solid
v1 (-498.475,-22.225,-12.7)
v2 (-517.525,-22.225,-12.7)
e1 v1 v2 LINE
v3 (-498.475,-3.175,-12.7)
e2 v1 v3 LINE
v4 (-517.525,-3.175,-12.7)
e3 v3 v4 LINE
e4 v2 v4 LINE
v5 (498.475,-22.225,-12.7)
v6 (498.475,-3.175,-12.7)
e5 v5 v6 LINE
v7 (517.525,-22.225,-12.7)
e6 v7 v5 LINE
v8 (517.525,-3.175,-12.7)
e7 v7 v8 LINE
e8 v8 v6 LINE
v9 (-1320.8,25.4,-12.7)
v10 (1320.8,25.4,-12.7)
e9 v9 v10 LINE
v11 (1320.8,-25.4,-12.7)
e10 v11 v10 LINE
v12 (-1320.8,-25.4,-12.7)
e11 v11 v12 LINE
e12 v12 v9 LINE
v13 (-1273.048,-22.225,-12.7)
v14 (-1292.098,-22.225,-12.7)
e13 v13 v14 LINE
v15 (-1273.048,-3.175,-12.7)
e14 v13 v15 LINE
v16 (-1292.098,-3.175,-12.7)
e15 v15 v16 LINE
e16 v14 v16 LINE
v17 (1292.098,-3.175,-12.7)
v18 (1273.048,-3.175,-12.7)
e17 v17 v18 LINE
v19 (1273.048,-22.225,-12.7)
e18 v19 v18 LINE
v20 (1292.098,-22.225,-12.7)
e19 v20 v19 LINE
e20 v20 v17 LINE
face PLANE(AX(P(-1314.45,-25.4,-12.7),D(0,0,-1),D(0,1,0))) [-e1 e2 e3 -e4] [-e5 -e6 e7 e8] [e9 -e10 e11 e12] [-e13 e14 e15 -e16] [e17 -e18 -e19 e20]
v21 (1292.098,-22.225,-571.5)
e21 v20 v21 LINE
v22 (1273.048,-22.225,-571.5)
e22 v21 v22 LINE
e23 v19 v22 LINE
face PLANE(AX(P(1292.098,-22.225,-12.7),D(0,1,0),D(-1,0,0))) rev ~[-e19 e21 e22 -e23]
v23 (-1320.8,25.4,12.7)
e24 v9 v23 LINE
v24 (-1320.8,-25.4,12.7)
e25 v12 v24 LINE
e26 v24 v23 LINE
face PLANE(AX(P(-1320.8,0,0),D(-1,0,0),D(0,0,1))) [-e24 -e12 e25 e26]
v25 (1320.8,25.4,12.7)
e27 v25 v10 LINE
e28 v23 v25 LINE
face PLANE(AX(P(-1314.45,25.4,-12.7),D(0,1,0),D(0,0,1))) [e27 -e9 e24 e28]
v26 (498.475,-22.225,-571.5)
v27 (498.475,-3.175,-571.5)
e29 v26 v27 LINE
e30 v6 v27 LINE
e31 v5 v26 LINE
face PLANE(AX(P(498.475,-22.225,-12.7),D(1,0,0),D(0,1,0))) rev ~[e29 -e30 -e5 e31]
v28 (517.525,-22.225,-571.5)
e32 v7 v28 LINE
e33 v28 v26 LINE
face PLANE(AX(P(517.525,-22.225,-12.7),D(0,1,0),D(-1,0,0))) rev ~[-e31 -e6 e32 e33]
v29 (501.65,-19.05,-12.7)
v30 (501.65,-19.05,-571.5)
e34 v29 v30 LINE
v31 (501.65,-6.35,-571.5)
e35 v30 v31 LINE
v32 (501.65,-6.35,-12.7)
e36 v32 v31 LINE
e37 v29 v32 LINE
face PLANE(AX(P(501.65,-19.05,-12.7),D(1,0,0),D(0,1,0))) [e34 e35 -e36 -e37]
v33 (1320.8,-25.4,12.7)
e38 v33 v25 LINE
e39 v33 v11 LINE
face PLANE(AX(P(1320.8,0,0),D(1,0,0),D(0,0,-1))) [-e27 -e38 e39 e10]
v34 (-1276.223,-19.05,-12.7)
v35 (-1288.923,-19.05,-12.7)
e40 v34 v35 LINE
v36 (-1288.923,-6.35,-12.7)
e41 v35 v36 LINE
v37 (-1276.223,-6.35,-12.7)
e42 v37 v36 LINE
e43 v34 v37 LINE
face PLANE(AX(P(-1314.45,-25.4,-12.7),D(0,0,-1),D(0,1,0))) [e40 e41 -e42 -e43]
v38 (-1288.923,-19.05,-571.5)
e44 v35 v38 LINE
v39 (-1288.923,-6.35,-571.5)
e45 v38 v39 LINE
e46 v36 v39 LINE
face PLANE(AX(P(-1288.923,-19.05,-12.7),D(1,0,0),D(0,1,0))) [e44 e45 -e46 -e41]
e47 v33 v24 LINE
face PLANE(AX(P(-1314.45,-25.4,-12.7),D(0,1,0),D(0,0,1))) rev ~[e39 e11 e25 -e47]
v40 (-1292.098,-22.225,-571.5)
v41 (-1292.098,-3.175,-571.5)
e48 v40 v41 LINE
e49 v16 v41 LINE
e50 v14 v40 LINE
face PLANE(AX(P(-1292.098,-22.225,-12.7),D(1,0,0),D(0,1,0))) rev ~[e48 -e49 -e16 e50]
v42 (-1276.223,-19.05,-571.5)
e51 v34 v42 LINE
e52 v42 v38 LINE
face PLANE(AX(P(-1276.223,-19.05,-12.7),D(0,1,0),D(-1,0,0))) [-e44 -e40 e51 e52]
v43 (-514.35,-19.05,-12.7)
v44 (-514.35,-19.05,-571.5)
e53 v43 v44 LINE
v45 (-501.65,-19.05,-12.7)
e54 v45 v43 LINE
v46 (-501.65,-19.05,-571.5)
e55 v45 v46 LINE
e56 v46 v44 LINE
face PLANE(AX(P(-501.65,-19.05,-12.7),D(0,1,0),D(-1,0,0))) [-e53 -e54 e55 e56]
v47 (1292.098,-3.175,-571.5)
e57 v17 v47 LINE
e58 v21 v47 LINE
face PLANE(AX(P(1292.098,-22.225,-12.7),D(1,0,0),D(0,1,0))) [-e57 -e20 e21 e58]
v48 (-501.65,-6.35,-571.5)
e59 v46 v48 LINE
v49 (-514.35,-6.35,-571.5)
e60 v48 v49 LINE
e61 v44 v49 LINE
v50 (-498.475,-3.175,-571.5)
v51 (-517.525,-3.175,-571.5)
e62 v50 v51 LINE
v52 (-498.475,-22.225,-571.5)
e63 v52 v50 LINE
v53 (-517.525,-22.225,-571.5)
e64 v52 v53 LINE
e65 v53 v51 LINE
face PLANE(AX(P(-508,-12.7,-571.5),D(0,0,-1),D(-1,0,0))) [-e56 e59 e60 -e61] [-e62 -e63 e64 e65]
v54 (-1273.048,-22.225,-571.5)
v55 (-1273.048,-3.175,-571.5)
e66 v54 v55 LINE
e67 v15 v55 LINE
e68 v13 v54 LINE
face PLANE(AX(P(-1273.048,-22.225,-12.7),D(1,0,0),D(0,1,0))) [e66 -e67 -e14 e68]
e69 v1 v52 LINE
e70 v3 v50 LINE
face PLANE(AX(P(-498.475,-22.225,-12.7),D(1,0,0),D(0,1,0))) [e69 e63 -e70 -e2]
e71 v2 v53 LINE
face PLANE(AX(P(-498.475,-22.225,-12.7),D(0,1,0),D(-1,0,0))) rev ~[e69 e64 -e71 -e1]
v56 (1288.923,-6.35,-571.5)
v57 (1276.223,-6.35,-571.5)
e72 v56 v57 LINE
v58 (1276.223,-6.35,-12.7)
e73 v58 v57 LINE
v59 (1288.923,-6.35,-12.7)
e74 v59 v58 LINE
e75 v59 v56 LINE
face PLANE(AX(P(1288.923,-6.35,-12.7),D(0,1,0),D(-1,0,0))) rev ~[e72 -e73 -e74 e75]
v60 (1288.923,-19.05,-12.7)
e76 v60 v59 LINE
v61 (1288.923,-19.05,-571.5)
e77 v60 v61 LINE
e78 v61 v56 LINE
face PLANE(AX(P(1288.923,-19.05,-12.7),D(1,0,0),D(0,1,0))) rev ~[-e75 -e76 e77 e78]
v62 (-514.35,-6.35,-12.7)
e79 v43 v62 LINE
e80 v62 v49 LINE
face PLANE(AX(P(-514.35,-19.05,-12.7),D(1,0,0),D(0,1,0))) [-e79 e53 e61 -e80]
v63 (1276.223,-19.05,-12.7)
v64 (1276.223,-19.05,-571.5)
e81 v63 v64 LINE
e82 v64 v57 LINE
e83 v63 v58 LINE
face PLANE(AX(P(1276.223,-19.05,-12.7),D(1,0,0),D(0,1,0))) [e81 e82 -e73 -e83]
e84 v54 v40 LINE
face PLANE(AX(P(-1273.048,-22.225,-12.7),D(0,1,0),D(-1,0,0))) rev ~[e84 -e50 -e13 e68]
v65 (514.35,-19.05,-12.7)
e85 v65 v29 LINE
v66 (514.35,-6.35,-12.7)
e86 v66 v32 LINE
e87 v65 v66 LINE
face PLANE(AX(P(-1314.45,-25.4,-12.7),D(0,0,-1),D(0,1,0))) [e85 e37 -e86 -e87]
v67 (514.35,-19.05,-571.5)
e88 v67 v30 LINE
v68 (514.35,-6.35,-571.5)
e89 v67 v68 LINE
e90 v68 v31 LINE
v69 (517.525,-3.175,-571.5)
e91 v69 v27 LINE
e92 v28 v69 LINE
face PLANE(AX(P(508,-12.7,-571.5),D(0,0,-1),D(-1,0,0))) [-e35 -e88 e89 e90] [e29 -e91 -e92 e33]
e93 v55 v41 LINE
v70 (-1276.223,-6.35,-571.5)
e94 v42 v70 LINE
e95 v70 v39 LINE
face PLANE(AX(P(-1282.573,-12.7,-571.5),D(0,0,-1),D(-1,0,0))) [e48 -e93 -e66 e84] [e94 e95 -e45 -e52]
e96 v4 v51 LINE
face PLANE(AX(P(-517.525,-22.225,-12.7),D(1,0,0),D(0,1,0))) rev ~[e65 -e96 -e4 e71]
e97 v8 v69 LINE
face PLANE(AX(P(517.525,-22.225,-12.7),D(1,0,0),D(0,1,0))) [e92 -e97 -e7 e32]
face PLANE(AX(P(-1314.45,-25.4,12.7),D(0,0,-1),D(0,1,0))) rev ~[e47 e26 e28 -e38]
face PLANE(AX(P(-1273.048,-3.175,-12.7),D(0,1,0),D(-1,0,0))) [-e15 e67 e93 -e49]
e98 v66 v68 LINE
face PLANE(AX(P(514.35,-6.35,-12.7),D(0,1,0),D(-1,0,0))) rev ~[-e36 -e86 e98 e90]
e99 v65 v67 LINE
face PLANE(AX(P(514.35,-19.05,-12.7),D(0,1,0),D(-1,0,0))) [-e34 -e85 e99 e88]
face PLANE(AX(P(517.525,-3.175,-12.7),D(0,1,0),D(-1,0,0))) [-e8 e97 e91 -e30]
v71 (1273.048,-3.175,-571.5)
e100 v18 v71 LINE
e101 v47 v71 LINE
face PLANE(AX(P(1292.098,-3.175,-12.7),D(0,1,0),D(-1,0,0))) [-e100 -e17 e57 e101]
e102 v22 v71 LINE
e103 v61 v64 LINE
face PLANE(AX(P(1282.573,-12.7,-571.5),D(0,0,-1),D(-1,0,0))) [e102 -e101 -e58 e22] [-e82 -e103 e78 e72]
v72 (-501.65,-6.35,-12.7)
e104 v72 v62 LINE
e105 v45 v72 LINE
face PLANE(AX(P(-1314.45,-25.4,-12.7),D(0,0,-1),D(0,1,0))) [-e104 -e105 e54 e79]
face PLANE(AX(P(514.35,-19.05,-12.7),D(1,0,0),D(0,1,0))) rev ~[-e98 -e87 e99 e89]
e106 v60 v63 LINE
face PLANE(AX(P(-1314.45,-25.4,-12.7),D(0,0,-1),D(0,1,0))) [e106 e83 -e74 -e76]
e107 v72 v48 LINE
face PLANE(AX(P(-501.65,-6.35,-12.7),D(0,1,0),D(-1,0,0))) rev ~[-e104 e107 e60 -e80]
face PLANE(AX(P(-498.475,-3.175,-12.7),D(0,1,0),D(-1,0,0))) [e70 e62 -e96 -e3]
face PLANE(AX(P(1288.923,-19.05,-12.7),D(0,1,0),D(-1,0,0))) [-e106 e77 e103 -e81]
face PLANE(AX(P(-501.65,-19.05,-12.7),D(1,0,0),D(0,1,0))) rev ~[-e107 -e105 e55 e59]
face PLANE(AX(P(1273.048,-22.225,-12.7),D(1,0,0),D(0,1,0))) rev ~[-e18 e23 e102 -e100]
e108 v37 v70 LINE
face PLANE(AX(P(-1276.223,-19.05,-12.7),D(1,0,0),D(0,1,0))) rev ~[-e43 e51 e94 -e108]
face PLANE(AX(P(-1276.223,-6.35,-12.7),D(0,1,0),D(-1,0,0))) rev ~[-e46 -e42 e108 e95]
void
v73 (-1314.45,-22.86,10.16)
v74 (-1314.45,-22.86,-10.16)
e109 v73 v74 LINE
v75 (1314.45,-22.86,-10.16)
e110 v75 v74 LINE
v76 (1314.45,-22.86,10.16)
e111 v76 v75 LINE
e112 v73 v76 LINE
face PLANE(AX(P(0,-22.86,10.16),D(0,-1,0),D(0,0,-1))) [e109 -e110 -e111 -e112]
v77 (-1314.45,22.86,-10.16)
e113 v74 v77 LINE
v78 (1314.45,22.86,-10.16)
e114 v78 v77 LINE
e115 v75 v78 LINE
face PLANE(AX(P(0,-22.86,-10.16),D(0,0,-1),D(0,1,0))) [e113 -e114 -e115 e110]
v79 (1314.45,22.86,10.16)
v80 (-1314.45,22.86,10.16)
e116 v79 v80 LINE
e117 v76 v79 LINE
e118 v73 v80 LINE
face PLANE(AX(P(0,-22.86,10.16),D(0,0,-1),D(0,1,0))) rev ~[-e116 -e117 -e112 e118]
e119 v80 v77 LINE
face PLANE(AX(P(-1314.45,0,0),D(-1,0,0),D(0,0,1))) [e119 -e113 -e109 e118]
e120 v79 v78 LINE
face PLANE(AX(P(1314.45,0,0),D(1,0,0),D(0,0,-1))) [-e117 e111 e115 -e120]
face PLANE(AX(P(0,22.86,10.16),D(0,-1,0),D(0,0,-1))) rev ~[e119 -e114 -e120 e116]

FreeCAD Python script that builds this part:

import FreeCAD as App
import Part
import Sketcher
from FreeCAD import Vector
Q = App.Units.Quantity

doc = App.newDocument("Part")
params = doc.addObject("Spreadsheet::Sheet", "Params")
for row, (alias, value) in enumerate([
    ("sketch1_width", "2 in"),
    ("sketch1_height", "1 in"),
    ("sketch1_width2", "1.8 in"),
    ("sketch1_height2", "0.8 in"),
    ("pad1_length", "103.5 in"),
    ("sketch2_width", "2 in"),
    ("sketch2_height", "1 in"),
    ("pad2_length", "0.25 in"),
    ("sketch3_width", "2 in"),
    ("sketch3_height", "1 in"),
    ("pad3_length", "0.25 in"),
    ("sketch4_width", "0.5 in"),
    ("sketch4_width2", "0.75 in"),
    ("pad4_length", "22 in"),
], start=1):
    params.set(f"A{row}", alias)
    params.set(f"B{row}", "=" + value)
    params.setAlias(f"B{row}", alias)

body = doc.addObject("PartDesign::Body", "Body")

sketch1 = body.newObject("Sketcher::SketchObject", "Sketch")
sketch1.AttachmentSupport = (doc.getObject("YZ_Plane"), [""])
sketch1.MapMode = "FlatFace"
sketch1.addGeometry([
    Part.LineSegment(Vector(25.4, 12.7, 0), Vector(-25.4, 12.7, 0)),
    Part.LineSegment(Vector(-25.4, 12.7, 0), Vector(-25.4, -12.7, 0)),
    Part.LineSegment(Vector(-25.4, -12.7, 0), Vector(25.4, -12.7, 0)),
    Part.LineSegment(Vector(25.4, -12.7, 0), Vector(25.4, 12.7, 0)),
    Part.LineSegment(Vector(-22.86, -10.16, 0), Vector(-22.86, 10.16, 0)),
    Part.LineSegment(Vector(-22.86, 10.16, 0), Vector(22.86, 10.16, 0)),
    Part.LineSegment(Vector(22.86, 10.16, 0), Vector(22.86, -10.16, 0)),
    Part.LineSegment(Vector(22.86, -10.16, 0), Vector(-22.86, -10.16, 0)),
], False)
sketch1.addConstraint([
    Sketcher.Constraint("Coincident", 0, 2, 1, 1),
    Sketcher.Constraint("Coincident", 1, 2, 2, 1),
    Sketcher.Constraint("Coincident", 2, 2, 3, 1),
    Sketcher.Constraint("Coincident", 3, 2, 0, 1),
    Sketcher.Constraint("Coincident", 4, 2, 5, 1),
    Sketcher.Constraint("Coincident", 5, 2, 6, 1),
    Sketcher.Constraint("Coincident", 6, 2, 7, 1),
    Sketcher.Constraint("Coincident", 7, 2, 4, 1),
    Sketcher.Constraint("Horizontal", 0),
    Sketcher.Constraint("Vertical", 1),
    Sketcher.Constraint("Horizontal", 2),
    Sketcher.Constraint("Vertical", 3),
    Sketcher.Constraint("Vertical", 4),
    Sketcher.Constraint("Horizontal", 5),
    Sketcher.Constraint("Vertical", 6),
    Sketcher.Constraint("Horizontal", 7),
    Sketcher.Constraint("Symmetric", 0, 2, 2, 2, -1, 1),
    Sketcher.Constraint("Symmetric", 4, 2, 6, 2, -1, 1),
    Sketcher.Constraint("DistanceX", 0, 2, 0, 1, Q("2 in")),
    Sketcher.Constraint("DistanceY", 1, 2, 1, 1, Q("1 in")),
    Sketcher.Constraint("DistanceX", 5, 1, 5, 2, Q("1.8 in")),
    Sketcher.Constraint("DistanceY", 4, 1, 4, 2, Q("0.8 in")),
])
sketch1.setExpression("Constraints[18]", "Params.sketch1_width")
sketch1.setExpression("Constraints[19]", "Params.sketch1_height")
sketch1.setExpression("Constraints[20]", "Params.sketch1_width2")
sketch1.setExpression("Constraints[21]", "Params.sketch1_height2")
pad1 = body.newObject("PartDesign::Pad", "Pad")
pad1.Profile = sketch1
pad1.setExpression("Length", "Params.pad1_length")
pad1.Midplane = True

sketch2 = body.newObject("Sketcher::SketchObject", "Sketch001")
sketch2.AttachmentSupport = (doc.getObject("YZ_Plane"), [""])
sketch2.MapMode = "FlatFace"
sketch2.AttachmentOffset = App.Placement(Vector(0, 0, 51.75 * 25.4), App.Rotation())
sketch2.addGeometry([
    Part.LineSegment(Vector(25.4, 12.7, 0), Vector(-25.4, 12.7, 0)),
    Part.LineSegment(Vector(-25.4, 12.7, 0), Vector(-25.4, -12.7, 0)),
    Part.LineSegment(Vector(-25.4, -12.7, 0), Vector(25.4, -12.7, 0)),
    Part.LineSegment(Vector(25.4, -12.7, 0), Vector(25.4, 12.7, 0)),
], False)
sketch2.addConstraint([
    Sketcher.Constraint("Coincident", 0, 2, 1, 1),
    Sketcher.Constraint("Coincident", 1, 2, 2, 1),
    Sketcher.Constraint("Coincident", 2, 2, 3, 1),
    Sketcher.Constraint("Coincident", 3, 2, 0, 1),
    Sketcher.Constraint("Horizontal", 0),
    Sketcher.Constraint("Vertical", 1),
    Sketcher.Constraint("Horizontal", 2),
    Sketcher.Constraint("Vertical", 3),
    Sketcher.Constraint("Symmetric", 0, 2, 2, 2, -1, 1),
    Sketcher.Constraint("DistanceX", 0, 2, 0, 1, Q("2 in")),
    Sketcher.Constraint("DistanceY", 1, 2, 1, 1, Q("1 in")),
])
sketch2.setExpression("Constraints[9]", "Params.sketch2_width")
sketch2.setExpression("Constraints[10]", "Params.sketch2_height")
pad2 = body.newObject("PartDesign::Pad", "Pad001")
pad2.Profile = sketch2
pad2.setExpression("Length", "Params.pad2_length")

sketch3 = body.newObject("Sketcher::SketchObject", "Sketch002")
sketch3.AttachmentSupport = (doc.getObject("YZ_Plane"), [""])
sketch3.MapMode = "FlatFace"
sketch3.AttachmentOffset = App.Placement(Vector(0, 0, -51.75 * 25.4), App.Rotation())
sketch3.addGeometry([
    Part.LineSegment(Vector(25.4, -12.7, 0), Vector(-25.4, -12.7, 0)),
    Part.LineSegment(Vector(-25.4, -12.7, 0), Vector(-25.4, 12.7, 0)),
    Part.LineSegment(Vector(-25.4, 12.7, 0), Vector(25.4, 12.7, 0)),
    Part.LineSegment(Vector(25.4, 12.7, 0), Vector(25.4, -12.7, 0)),
], False)
sketch3.addConstraint([
    Sketcher.Constraint("Coincident", 0, 2, 1, 1),
    Sketcher.Constraint("Coincident", 1, 2, 2, 1),
    Sketcher.Constraint("Coincident", 2, 2, 3, 1),
    Sketcher.Constraint("Coincident", 3, 2, 0, 1),
    Sketcher.Constraint("Horizontal", 0),
    Sketcher.Constraint("Vertical", 1),
    Sketcher.Constraint("Horizontal", 2),
    Sketcher.Constraint("Vertical", 3),
    Sketcher.Constraint("Symmetric", 0, 2, 2, 2, -1, 1),
    Sketcher.Constraint("DistanceX", 0, 2, 0, 1, Q("2 in")),
    Sketcher.Constraint("DistanceY", 1, 1, 1, 2, Q("1 in")),
])
sketch3.setExpression("Constraints[9]", "Params.sketch3_width")
sketch3.setExpression("Constraints[10]", "Params.sketch3_height")
pad3 = body.newObject("PartDesign::Pad", "Pad002")
pad3.Profile = sketch3
pad3.setExpression("Length", "Params.pad3_length")
pad3.Reversed = True

sketch4 = body.newObject("Sketcher::SketchObject", "Sketch003")
sketch4.AttachmentSupport = (doc.getObject("XY_Plane"), [""])
sketch4.MapMode = "FlatFace"
sketch4.AttachmentOffset = App.Placement(Vector(0, 0, -0.5 * 25.4), App.Rotation())
sketch4.addGeometry([
    Part.LineSegment(Vector(1292.098, -3.175, 0), Vector(1292.098, -22.225, 0)),
    Part.LineSegment(Vector(1292.098, -22.225, 0), Vector(1273.048, -22.225, 0)),
    Part.LineSegment(Vector(1273.048, -22.225, 0), Vector(1273.048, -3.175, 0)),
    Part.LineSegment(Vector(1273.048, -3.175, 0), Vector(1292.098, -3.175, 0)),
    Part.LineSegment(Vector(1276.223, -19.05, 0), Vector(1288.923, -19.05, 0)),
    Part.LineSegment(Vector(1288.923, -19.05, 0), Vector(1288.923, -6.35, 0)),
    Part.LineSegment(Vector(1288.923, -6.35, 0), Vector(1276.223, -6.35, 0)),
    Part.LineSegment(Vector(1276.223, -6.35, 0), Vector(1276.223, -19.05, 0)),
    Part.LineSegment(Vector(517.525, -3.175, 0), Vector(517.525, -22.225, 0)),
    Part.LineSegment(Vector(517.525, -22.225, 0), Vector(498.475, -22.225, 0)),
    Part.LineSegment(Vector(498.475, -22.225, 0), Vector(498.475, -3.175, 0)),
    Part.LineSegment(Vector(498.475, -3.175, 0), Vector(517.525, -3.175, 0)),
    Part.LineSegment(Vector(501.65, -19.05, 0), Vector(514.35, -19.05, 0)),
    Part.LineSegment(Vector(514.35, -19.05, 0), Vector(514.35, -6.35, 0)),
    Part.LineSegment(Vector(514.35, -6.35, 0), Vector(501.65, -6.35, 0)),
    Part.LineSegment(Vector(501.65, -6.35, 0), Vector(501.65, -19.05, 0)),
    Part.LineSegment(Vector(-1273.048, -3.175, 0), Vector(-1273.048, -22.225, 0)),
    Part.LineSegment(Vector(-1273.048, -22.225, 0), Vector(-1292.098, -22.225, 0)),
    Part.LineSegment(Vector(-1292.098, -22.225, 0), Vector(-1292.098, -3.175, 0)),
    Part.LineSegment(Vector(-1292.098, -3.175, 0), Vector(-1273.048, -3.175, 0)),
    Part.LineSegment(Vector(-1288.923, -19.05, 0), Vector(-1276.223, -19.05, 0)),
    Part.LineSegment(Vector(-1276.223, -19.05, 0), Vector(-1276.223, -6.35, 0)),
    Part.LineSegment(Vector(-1276.223, -6.35, 0), Vector(-1288.923, -6.35, 0)),
    Part.LineSegment(Vector(-1288.923, -6.35, 0), Vector(-1288.923, -19.05, 0)),
    Part.LineSegment(Vector(-498.475, -3.175, 0), Vector(-498.475, -22.225, 0)),
    Part.LineSegment(Vector(-498.475, -22.225, 0), Vector(-517.525, -22.225, 0)),
    Part.LineSegment(Vector(-517.525, -22.225, 0), Vector(-517.525, -3.175, 0)),
    Part.LineSegment(Vector(-517.525, -3.175, 0), Vector(-498.475, -3.175, 0)),
    Part.LineSegment(Vector(-514.35, -19.05, 0), Vector(-501.65, -19.05, 0)),
    Part.LineSegment(Vector(-501.65, -19.05, 0), Vector(-501.65, -6.35, 0)),
    Part.LineSegment(Vector(-501.65, -6.35, 0), Vector(-514.35, -6.35, 0)),
    Part.LineSegment(Vector(-514.35, -6.35, 0), Vector(-514.35, -19.05, 0)),
], False)
sketch4.addConstraint([
    Sketcher.Constraint("Coincident", 0, 2, 1, 1),
    Sketcher.Constraint("Coincident", 1, 2, 2, 1),
    Sketcher.Constraint("Coincident", 2, 2, 3, 1),
    Sketcher.Constraint("Coincident", 3, 2, 0, 1),
    Sketcher.Constraint("Coincident", 4, 2, 5, 1),
    Sketcher.Constraint("Coincident", 5, 2, 6, 1),
    Sketcher.Constraint("Coincident", 6, 2, 7, 1),
    Sketcher.Constraint("Coincident", 7, 2, 4, 1),
    Sketcher.Constraint("Coincident", 8, 2, 9, 1),
    Sketcher.Constraint("Coincident", 9, 2, 10, 1),
    Sketcher.Constraint("Coincident", 10, 2, 11, 1),
    Sketcher.Constraint("Coincident", 11, 2, 8, 1),
    Sketcher.Constraint("Coincident", 12, 2, 13, 1),
    Sketcher.Constraint("Coincident", 13, 2, 14, 1),
    Sketcher.Constraint("Coincident", 14, 2, 15, 1),
    Sketcher.Constraint("Coincident", 15, 2, 12, 1),
    Sketcher.Constraint("Coincident", 16, 2, 17, 1),
    Sketcher.Constraint("Coincident", 17, 2, 18, 1),
    Sketcher.Constraint("Coincident", 18, 2, 19, 1),
    Sketcher.Constraint("Coincident", 19, 2, 16, 1),
    Sketcher.Constraint("Coincident", 20, 2, 21, 1),
    Sketcher.Constraint("Coincident", 21, 2, 22, 1),
    Sketcher.Constraint("Coincident", 22, 2, 23, 1),
    Sketcher.Constraint("Coincident", 23, 2, 20, 1),
    Sketcher.Constraint("Coincident", 24, 2, 25, 1),
    Sketcher.Constraint("Coincident", 25, 2, 26, 1),
    Sketcher.Constraint("Coincident", 26, 2, 27, 1),
    Sketcher.Constraint("Coincident", 27, 2, 24, 1),
    Sketcher.Constraint("Coincident", 28, 2, 29, 1),
    Sketcher.Constraint("Coincident", 29, 2, 30, 1),
    Sketcher.Constraint("Coincident", 30, 2, 31, 1),
    Sketcher.Constraint("Coincident", 31, 2, 28, 1),
    Sketcher.Constraint("Vertical", 0),
    Sketcher.Constraint("Horizontal", 1),
    Sketcher.Constraint("Vertical", 2),
    Sketcher.Constraint("Horizontal", 3),
    Sketcher.Constraint("Horizontal", 4),
    Sketcher.Constraint("Vertical", 5),
    Sketcher.Constraint("Horizontal", 6),
    Sketcher.Constraint("Vertical", 7),
    Sketcher.Constraint("Vertical", 8),
    Sketcher.Constraint("Horizontal", 9),
    Sketcher.Constraint("Vertical", 10),
    Sketcher.Constraint("Horizontal", 11),
    Sketcher.Constraint("Horizontal", 12),
    Sketcher.Constraint("Vertical", 13),
    Sketcher.Constraint("Horizontal", 14),
    Sketcher.Constraint("Vertical", 15),
    Sketcher.Constraint("Vertical", 16),
    Sketcher.Constraint("Horizontal", 17),
    Sketcher.Constraint("Vertical", 18),
    Sketcher.Constraint("Horizontal", 19),
    Sketcher.Constraint("Horizontal", 20),
    Sketcher.Constraint("Vertical", 21),
    Sketcher.Constraint("Horizontal", 22),
    Sketcher.Constraint("Vertical", 23),
    Sketcher.Constraint("Vertical", 24),
    Sketcher.Constraint("Horizontal", 25),
    Sketcher.Constraint("Vertical", 26),
    Sketcher.Constraint("Horizontal", 27),
    Sketcher.Constraint("Horizontal", 28),
    Sketcher.Constraint("Vertical", 29),
    Sketcher.Constraint("Horizontal", 30),
    Sketcher.Constraint("Vertical", 31),
    Sketcher.Constraint("Symmetric", 1, 2, 16, 2, -2),
    Sketcher.Constraint("Symmetric", 3, 2, 18, 2, -2),
    Sketcher.Constraint("Symmetric", 7, 2, 20, 2, -2),
    Sketcher.Constraint("Symmetric", 5, 2, 22, 2, -2),
    Sketcher.Constraint("Symmetric", 9, 2, 24, 2, -2),
    Sketcher.Constraint("Symmetric", 11, 2, 26, 2, -2),
    Sketcher.Constraint("Symmetric", 15, 2, 28, 2, -2),
    Sketcher.Constraint("Symmetric", 13, 2, 30, 2, -2),
    Sketcher.Constraint("Horizontal", 1, 2, 8, 2),
    Sketcher.Constraint("Horizontal", 3, 2, 10, 2),
    Sketcher.Constraint("Horizontal", 7, 2, 12, 2),
    Sketcher.Constraint("Horizontal", 6, 2, 13, 2),
    Sketcher.Constraint("Equal", 3, 9),
    Sketcher.Constraint("Equal", 6, 12),
    Sketcher.Constraint("Equal", 27, 0),
    Sketcher.Constraint("Equal", 30, 5),
    Sketcher.Constraint("DistanceX", 4, 1, 4, 2, Q("0.5 in")),
    Sketcher.Constraint("DistanceX", 1, 2, 1, 1, Q("0.75 in")),
    Sketcher.Constraint("DistanceX", -1, 1, 0, 2, Q("50.87 in")),
    Sketcher.Constraint("DistanceY", 4, 2, -1, 1, Q("0.75 in")),
    Sketcher.Constraint("DistanceX", -1, 1, 12, 2, Q("20.25 in")),
    Sketcher.Constraint("DistanceX", 8, 2, 7, 2, Q("29.87 in")),
    Sketcher.Constraint("DistanceX", 20, 2, 9, 2, Q("69.87 in")),
    Sketcher.Constraint("DistanceY", 0, 2, -1, 1, Q("0.875 in")),
])
sketch4.setExpression("Constraints[80]", "Params.sketch4_width")
sketch4.setExpression("Constraints[81]", "Params.sketch4_width2")
pad4 = body.newObject("PartDesign::Pad", "Pad003")
pad4.Profile = sketch4
pad4.setExpression("Length", "Params.pad4_length")
pad4.Reversed = True

doc.recompute()
